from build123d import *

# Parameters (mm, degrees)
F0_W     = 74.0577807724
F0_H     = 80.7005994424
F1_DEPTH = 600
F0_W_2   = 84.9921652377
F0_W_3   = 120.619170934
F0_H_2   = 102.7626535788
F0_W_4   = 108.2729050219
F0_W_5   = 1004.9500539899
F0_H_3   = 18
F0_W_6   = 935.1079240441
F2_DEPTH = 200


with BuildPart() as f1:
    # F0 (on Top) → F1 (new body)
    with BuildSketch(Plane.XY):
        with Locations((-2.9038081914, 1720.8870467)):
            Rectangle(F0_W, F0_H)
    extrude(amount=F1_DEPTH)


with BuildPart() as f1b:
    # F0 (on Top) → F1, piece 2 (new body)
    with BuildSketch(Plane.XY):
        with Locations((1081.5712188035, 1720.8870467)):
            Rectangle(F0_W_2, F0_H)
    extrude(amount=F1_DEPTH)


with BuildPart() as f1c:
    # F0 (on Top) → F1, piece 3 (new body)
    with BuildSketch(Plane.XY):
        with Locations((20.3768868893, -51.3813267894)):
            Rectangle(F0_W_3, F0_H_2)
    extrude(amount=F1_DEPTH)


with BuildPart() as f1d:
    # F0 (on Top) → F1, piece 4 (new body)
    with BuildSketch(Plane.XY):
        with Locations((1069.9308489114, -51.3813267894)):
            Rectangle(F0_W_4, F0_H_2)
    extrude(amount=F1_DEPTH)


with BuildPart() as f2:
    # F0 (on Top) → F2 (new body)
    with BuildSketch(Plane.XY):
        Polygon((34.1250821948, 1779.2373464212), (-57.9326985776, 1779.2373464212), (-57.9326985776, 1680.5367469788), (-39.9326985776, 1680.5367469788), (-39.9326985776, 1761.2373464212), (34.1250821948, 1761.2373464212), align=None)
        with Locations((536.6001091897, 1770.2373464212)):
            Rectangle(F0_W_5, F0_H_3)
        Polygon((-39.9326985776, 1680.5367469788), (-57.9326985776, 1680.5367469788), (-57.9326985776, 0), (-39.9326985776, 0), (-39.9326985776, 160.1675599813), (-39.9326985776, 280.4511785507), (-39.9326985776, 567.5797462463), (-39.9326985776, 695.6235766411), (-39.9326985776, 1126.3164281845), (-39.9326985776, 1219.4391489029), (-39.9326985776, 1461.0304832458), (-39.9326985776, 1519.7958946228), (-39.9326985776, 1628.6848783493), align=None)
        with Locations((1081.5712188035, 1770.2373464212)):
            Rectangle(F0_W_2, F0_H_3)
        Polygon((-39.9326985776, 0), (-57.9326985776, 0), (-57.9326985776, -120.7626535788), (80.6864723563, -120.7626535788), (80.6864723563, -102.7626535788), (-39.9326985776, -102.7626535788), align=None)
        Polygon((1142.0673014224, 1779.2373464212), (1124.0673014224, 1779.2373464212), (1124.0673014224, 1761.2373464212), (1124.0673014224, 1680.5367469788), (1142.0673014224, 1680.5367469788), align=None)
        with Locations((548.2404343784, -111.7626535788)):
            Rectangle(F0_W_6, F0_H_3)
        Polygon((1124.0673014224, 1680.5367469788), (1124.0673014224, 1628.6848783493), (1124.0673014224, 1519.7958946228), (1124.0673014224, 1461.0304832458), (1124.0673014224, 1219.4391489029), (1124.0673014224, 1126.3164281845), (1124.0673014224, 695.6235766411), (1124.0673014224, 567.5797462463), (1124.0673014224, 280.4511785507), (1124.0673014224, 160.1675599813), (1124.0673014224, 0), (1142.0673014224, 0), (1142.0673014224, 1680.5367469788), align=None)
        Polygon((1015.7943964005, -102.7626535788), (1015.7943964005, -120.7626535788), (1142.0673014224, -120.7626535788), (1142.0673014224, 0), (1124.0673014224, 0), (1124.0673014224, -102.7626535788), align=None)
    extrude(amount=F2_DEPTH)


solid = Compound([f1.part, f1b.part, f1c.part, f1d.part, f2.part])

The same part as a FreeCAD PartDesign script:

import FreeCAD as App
import Part
import Sketcher

V = App.Vector
Q = App.Units.Quantity


def add_polygon(sketch, points):
    """Adds a closed chain of lines whose ends are joined by coincident constraints."""
    first, n = sketch.GeometryCount, len(points)
    for a, b in zip(points, points[1:] + points[:1]):
        sketch.addGeometry(Part.LineSegment(App.Vector(*a, 0), App.Vector(*b, 0)), False)
    for i in range(n):
        sketch.addConstraint(Sketcher.Constraint("Coincident", first + i, 2, first + (i + 1) % n, 1))

doc = App.newDocument("Part")
body = doc.addObject("PartDesign::Body", "Body")

# Sketch on XY plane
sketch1 = doc.addObject("Sketcher::SketchObject", "Sketch")
body.addObject(sketch1)
sketch1.AttachmentSupport = (doc.XY_Plane, [""])
sketch1.MapMode = "FlatFace"
add_polygon(sketch1, [(-40, 1761), (-40, 1681), (34, 1681), (34, 1761)])  # lines 0-3
sketch1.addConstraint(Sketcher.Constraint("Vertical", 0))
sketch1.addConstraint(Sketcher.Constraint("Horizontal", 1))
sketch1.addConstraint(Sketcher.Constraint("Vertical", 2))
sketch1.addConstraint(Sketcher.Constraint("Horizontal", 3))
sketch1.addConstraint(Sketcher.Constraint("DistanceY", 0, 2, 0, 1, Q("80.700599 mm")))
sketch1.addConstraint(Sketcher.Constraint("DistanceX", 1, 1, 1, 2, Q("74.057781 mm")))
sketch1.addConstraint(Sketcher.Constraint("DistanceX", 0, 2, -1, 1, Q("39.932699 mm")))
sketch1.addConstraint(Sketcher.Constraint("DistanceY", -1, 1, 0, 2, Q("1680.536747 mm")))
pad1 = doc.addObject("PartDesign::Pad", "Pad")
body.addObject(pad1)
pad1.Profile = sketch1
pad1.Length = 600
body2 = doc.addObject("PartDesign::Body", "Body001")

# Sketch on XY plane
sketch2 = doc.addObject("Sketcher::SketchObject", "Sketch001")
body2.addObject(sketch2)
sketch2.AttachmentSupport = (doc.getObject("XY_Plane001"), [""])
sketch2.MapMode = "FlatFace"
add_polygon(sketch2, [(1039, 1761), (1039, 1681), (1124, 1681), (1124, 1761)])  # lines 0-3
sketch2.addConstraint(Sketcher.Constraint("Vertical", 0))
sketch2.addConstraint(Sketcher.Constraint("Horizontal", 1))
sketch2.addConstraint(Sketcher.Constraint("Vertical", 2))
sketch2.addConstraint(Sketcher.Constraint("Horizontal", 3))
sketch2.addConstraint(Sketcher.Constraint("DistanceY", 0, 2, 0, 1, Q("80.700599 mm")))
sketch2.addConstraint(Sketcher.Constraint("DistanceX", -1, 1, 1, 2, Q("1124.067301 mm")))
sketch2.addConstraint(Sketcher.Constraint("DistanceX", 1, 1, 1, 2, Q("84.992165 mm")))
sketch2.addConstraint(Sketcher.Constraint("DistanceY", -1, 1, 0, 2, Q("1680.536747 mm")))
pad2 = doc.addObject("PartDesign::Pad", "Pad001")
body2.addObject(pad2)
pad2.Profile = sketch2
pad2.Length = 600
body3 = doc.addObject("PartDesign::Body", "Body002")

# Sketch on XY plane
sketch3 = doc.addObject("Sketcher::SketchObject", "Sketch002")
body3.addObject(sketch3)
sketch3.AttachmentSupport = (doc.getObject("XY_Plane002"), [""])
sketch3.MapMode = "FlatFace"
add_polygon(sketch3, [(-40, 0), (-40, -103), (81, -103), (81, 0)])  # lines 0-3
sketch3.addConstraint(Sketcher.Constraint("Vertical", 0))
sketch3.addConstraint(Sketcher.Constraint("Horizontal", 1))
sketch3.addConstraint(Sketcher.Constraint("Vertical", 2))
sketch3.addConstraint(Sketcher.Constraint("Horizontal", 3))
sketch3.addConstraint(Sketcher.Constraint("PointOnObject", 2, 2, -1))
sketch3.addConstraint(Sketcher.Constraint("DistanceX", 1, 1, 1, 2, Q("120.619171 mm")))
sketch3.addConstraint(Sketcher.Constraint("DistanceX", 0, 2, -1, 1, Q("39.932699 mm")))
sketch3.addConstraint(Sketcher.Constraint("DistanceY", 0, 2, 0, 1, Q("102.762654 mm")))
pad3 = doc.addObject("PartDesign::Pad", "Pad002")
body3.addObject(pad3)
pad3.Profile = sketch3
pad3.Length = 600
body4 = doc.addObject("PartDesign::Body", "Body003")

# Sketch on XY plane
sketch4 = doc.addObject("Sketcher::SketchObject", "Sketch003")
body4.addObject(sketch4)
sketch4.AttachmentSupport = (doc.getObject("XY_Plane003"), [""])
sketch4.MapMode = "FlatFace"
add_polygon(sketch4, [(1016, 0), (1016, -103), (1124, -103), (1124, 0)])  # lines 0-3
sketch4.addConstraint(Sketcher.Constraint("Vertical", 0))
sketch4.addConstraint(Sketcher.Constraint("Horizontal", 1))
sketch4.addConstraint(Sketcher.Constraint("Vertical", 2))
sketch4.addConstraint(Sketcher.Constraint("Horizontal", 3))
sketch4.addConstraint(Sketcher.Constraint("PointOnObject", 2, 2, -1))
sketch4.addConstraint(Sketcher.Constraint("DistanceX", -1, 1, 1, 2, Q("1124.067301 mm")))
sketch4.addConstraint(Sketcher.Constraint("DistanceX", 1, 1, 1, 2, Q("108.272905 mm")))
sketch4.addConstraint(Sketcher.Constraint("DistanceY", 0, 2, 0, 1, Q("102.762654 mm")))
pad4 = doc.addObject("PartDesign::Pad", "Pad003")
body4.addObject(pad4)
pad4.Profile = sketch4
pad4.Length = 600
body5 = doc.addObject("PartDesign::Body", "Body004")

# Sketch on XY plane
sketch5 = doc.addObject("Sketcher::SketchObject", "Sketch004")
body5.addObject(sketch5)
sketch5.AttachmentSupport = (doc.getObject("XY_Plane004"), [""])
sketch5.MapMode = "FlatFace"
add_polygon(sketch5, [(-58, 1779), (-58, -121), (1142, -121), (1142, 1779)])  # lines 0-3
add_polygon(sketch5, [(-40, -103), (-40, 1761), (1124, 1761), (1124, -103)])  # lines 4-7
sketch5.addConstraint(Sketcher.Constraint("Vertical", 0))
sketch5.addConstraint(Sketcher.Constraint("Horizontal", 1))
sketch5.addConstraint(Sketcher.Constraint("Vertical", 2))
sketch5.addConstraint(Sketcher.Constraint("Horizontal", 3))
sketch5.addConstraint(Sketcher.Constraint("Vertical", 4))
sketch5.addConstraint(Sketcher.Constraint("Horizontal", 5))
sketch5.addConstraint(Sketcher.Constraint("Vertical", 6))
sketch5.addConstraint(Sketcher.Constraint("Horizontal", 7))
sketch5.addConstraint(Sketcher.Constraint("DistanceX", 1, 1, 1, 2, Q("1200 mm")))
sketch5.addConstraint(Sketcher.Constraint("DistanceX", 5, 1, 5, 2, Q("1164 mm")))
sketch5.addConstraint(Sketcher.Constraint("DistanceY", 0, 2, 0, 1, Q("1900 mm")))
sketch5.addConstraint(Sketcher.Constraint("DistanceY", 4, 1, 4, 2, Q("1864 mm")))
sketch5.addConstraint(Sketcher.Constraint("DistanceX", 3, 2, 4, 2, Q("18 mm")))
sketch5.addConstraint(Sketcher.Constraint("DistanceY", 4, 2, 3, 2, Q("18 mm")))
sketch5.addConstraint(Sketcher.Constraint("DistanceX", 0, 2, -1, 1, Q("57.932699 mm")))
sketch5.addConstraint(Sketcher.Constraint("DistanceY", 0, 2, -1, 1, Q("120.762654 mm")))
pad5 = doc.addObject("PartDesign::Pad", "Pad004")
body5.addObject(pad5)
pad5.Profile = sketch5
pad5.Length = 200

doc.recompute()
